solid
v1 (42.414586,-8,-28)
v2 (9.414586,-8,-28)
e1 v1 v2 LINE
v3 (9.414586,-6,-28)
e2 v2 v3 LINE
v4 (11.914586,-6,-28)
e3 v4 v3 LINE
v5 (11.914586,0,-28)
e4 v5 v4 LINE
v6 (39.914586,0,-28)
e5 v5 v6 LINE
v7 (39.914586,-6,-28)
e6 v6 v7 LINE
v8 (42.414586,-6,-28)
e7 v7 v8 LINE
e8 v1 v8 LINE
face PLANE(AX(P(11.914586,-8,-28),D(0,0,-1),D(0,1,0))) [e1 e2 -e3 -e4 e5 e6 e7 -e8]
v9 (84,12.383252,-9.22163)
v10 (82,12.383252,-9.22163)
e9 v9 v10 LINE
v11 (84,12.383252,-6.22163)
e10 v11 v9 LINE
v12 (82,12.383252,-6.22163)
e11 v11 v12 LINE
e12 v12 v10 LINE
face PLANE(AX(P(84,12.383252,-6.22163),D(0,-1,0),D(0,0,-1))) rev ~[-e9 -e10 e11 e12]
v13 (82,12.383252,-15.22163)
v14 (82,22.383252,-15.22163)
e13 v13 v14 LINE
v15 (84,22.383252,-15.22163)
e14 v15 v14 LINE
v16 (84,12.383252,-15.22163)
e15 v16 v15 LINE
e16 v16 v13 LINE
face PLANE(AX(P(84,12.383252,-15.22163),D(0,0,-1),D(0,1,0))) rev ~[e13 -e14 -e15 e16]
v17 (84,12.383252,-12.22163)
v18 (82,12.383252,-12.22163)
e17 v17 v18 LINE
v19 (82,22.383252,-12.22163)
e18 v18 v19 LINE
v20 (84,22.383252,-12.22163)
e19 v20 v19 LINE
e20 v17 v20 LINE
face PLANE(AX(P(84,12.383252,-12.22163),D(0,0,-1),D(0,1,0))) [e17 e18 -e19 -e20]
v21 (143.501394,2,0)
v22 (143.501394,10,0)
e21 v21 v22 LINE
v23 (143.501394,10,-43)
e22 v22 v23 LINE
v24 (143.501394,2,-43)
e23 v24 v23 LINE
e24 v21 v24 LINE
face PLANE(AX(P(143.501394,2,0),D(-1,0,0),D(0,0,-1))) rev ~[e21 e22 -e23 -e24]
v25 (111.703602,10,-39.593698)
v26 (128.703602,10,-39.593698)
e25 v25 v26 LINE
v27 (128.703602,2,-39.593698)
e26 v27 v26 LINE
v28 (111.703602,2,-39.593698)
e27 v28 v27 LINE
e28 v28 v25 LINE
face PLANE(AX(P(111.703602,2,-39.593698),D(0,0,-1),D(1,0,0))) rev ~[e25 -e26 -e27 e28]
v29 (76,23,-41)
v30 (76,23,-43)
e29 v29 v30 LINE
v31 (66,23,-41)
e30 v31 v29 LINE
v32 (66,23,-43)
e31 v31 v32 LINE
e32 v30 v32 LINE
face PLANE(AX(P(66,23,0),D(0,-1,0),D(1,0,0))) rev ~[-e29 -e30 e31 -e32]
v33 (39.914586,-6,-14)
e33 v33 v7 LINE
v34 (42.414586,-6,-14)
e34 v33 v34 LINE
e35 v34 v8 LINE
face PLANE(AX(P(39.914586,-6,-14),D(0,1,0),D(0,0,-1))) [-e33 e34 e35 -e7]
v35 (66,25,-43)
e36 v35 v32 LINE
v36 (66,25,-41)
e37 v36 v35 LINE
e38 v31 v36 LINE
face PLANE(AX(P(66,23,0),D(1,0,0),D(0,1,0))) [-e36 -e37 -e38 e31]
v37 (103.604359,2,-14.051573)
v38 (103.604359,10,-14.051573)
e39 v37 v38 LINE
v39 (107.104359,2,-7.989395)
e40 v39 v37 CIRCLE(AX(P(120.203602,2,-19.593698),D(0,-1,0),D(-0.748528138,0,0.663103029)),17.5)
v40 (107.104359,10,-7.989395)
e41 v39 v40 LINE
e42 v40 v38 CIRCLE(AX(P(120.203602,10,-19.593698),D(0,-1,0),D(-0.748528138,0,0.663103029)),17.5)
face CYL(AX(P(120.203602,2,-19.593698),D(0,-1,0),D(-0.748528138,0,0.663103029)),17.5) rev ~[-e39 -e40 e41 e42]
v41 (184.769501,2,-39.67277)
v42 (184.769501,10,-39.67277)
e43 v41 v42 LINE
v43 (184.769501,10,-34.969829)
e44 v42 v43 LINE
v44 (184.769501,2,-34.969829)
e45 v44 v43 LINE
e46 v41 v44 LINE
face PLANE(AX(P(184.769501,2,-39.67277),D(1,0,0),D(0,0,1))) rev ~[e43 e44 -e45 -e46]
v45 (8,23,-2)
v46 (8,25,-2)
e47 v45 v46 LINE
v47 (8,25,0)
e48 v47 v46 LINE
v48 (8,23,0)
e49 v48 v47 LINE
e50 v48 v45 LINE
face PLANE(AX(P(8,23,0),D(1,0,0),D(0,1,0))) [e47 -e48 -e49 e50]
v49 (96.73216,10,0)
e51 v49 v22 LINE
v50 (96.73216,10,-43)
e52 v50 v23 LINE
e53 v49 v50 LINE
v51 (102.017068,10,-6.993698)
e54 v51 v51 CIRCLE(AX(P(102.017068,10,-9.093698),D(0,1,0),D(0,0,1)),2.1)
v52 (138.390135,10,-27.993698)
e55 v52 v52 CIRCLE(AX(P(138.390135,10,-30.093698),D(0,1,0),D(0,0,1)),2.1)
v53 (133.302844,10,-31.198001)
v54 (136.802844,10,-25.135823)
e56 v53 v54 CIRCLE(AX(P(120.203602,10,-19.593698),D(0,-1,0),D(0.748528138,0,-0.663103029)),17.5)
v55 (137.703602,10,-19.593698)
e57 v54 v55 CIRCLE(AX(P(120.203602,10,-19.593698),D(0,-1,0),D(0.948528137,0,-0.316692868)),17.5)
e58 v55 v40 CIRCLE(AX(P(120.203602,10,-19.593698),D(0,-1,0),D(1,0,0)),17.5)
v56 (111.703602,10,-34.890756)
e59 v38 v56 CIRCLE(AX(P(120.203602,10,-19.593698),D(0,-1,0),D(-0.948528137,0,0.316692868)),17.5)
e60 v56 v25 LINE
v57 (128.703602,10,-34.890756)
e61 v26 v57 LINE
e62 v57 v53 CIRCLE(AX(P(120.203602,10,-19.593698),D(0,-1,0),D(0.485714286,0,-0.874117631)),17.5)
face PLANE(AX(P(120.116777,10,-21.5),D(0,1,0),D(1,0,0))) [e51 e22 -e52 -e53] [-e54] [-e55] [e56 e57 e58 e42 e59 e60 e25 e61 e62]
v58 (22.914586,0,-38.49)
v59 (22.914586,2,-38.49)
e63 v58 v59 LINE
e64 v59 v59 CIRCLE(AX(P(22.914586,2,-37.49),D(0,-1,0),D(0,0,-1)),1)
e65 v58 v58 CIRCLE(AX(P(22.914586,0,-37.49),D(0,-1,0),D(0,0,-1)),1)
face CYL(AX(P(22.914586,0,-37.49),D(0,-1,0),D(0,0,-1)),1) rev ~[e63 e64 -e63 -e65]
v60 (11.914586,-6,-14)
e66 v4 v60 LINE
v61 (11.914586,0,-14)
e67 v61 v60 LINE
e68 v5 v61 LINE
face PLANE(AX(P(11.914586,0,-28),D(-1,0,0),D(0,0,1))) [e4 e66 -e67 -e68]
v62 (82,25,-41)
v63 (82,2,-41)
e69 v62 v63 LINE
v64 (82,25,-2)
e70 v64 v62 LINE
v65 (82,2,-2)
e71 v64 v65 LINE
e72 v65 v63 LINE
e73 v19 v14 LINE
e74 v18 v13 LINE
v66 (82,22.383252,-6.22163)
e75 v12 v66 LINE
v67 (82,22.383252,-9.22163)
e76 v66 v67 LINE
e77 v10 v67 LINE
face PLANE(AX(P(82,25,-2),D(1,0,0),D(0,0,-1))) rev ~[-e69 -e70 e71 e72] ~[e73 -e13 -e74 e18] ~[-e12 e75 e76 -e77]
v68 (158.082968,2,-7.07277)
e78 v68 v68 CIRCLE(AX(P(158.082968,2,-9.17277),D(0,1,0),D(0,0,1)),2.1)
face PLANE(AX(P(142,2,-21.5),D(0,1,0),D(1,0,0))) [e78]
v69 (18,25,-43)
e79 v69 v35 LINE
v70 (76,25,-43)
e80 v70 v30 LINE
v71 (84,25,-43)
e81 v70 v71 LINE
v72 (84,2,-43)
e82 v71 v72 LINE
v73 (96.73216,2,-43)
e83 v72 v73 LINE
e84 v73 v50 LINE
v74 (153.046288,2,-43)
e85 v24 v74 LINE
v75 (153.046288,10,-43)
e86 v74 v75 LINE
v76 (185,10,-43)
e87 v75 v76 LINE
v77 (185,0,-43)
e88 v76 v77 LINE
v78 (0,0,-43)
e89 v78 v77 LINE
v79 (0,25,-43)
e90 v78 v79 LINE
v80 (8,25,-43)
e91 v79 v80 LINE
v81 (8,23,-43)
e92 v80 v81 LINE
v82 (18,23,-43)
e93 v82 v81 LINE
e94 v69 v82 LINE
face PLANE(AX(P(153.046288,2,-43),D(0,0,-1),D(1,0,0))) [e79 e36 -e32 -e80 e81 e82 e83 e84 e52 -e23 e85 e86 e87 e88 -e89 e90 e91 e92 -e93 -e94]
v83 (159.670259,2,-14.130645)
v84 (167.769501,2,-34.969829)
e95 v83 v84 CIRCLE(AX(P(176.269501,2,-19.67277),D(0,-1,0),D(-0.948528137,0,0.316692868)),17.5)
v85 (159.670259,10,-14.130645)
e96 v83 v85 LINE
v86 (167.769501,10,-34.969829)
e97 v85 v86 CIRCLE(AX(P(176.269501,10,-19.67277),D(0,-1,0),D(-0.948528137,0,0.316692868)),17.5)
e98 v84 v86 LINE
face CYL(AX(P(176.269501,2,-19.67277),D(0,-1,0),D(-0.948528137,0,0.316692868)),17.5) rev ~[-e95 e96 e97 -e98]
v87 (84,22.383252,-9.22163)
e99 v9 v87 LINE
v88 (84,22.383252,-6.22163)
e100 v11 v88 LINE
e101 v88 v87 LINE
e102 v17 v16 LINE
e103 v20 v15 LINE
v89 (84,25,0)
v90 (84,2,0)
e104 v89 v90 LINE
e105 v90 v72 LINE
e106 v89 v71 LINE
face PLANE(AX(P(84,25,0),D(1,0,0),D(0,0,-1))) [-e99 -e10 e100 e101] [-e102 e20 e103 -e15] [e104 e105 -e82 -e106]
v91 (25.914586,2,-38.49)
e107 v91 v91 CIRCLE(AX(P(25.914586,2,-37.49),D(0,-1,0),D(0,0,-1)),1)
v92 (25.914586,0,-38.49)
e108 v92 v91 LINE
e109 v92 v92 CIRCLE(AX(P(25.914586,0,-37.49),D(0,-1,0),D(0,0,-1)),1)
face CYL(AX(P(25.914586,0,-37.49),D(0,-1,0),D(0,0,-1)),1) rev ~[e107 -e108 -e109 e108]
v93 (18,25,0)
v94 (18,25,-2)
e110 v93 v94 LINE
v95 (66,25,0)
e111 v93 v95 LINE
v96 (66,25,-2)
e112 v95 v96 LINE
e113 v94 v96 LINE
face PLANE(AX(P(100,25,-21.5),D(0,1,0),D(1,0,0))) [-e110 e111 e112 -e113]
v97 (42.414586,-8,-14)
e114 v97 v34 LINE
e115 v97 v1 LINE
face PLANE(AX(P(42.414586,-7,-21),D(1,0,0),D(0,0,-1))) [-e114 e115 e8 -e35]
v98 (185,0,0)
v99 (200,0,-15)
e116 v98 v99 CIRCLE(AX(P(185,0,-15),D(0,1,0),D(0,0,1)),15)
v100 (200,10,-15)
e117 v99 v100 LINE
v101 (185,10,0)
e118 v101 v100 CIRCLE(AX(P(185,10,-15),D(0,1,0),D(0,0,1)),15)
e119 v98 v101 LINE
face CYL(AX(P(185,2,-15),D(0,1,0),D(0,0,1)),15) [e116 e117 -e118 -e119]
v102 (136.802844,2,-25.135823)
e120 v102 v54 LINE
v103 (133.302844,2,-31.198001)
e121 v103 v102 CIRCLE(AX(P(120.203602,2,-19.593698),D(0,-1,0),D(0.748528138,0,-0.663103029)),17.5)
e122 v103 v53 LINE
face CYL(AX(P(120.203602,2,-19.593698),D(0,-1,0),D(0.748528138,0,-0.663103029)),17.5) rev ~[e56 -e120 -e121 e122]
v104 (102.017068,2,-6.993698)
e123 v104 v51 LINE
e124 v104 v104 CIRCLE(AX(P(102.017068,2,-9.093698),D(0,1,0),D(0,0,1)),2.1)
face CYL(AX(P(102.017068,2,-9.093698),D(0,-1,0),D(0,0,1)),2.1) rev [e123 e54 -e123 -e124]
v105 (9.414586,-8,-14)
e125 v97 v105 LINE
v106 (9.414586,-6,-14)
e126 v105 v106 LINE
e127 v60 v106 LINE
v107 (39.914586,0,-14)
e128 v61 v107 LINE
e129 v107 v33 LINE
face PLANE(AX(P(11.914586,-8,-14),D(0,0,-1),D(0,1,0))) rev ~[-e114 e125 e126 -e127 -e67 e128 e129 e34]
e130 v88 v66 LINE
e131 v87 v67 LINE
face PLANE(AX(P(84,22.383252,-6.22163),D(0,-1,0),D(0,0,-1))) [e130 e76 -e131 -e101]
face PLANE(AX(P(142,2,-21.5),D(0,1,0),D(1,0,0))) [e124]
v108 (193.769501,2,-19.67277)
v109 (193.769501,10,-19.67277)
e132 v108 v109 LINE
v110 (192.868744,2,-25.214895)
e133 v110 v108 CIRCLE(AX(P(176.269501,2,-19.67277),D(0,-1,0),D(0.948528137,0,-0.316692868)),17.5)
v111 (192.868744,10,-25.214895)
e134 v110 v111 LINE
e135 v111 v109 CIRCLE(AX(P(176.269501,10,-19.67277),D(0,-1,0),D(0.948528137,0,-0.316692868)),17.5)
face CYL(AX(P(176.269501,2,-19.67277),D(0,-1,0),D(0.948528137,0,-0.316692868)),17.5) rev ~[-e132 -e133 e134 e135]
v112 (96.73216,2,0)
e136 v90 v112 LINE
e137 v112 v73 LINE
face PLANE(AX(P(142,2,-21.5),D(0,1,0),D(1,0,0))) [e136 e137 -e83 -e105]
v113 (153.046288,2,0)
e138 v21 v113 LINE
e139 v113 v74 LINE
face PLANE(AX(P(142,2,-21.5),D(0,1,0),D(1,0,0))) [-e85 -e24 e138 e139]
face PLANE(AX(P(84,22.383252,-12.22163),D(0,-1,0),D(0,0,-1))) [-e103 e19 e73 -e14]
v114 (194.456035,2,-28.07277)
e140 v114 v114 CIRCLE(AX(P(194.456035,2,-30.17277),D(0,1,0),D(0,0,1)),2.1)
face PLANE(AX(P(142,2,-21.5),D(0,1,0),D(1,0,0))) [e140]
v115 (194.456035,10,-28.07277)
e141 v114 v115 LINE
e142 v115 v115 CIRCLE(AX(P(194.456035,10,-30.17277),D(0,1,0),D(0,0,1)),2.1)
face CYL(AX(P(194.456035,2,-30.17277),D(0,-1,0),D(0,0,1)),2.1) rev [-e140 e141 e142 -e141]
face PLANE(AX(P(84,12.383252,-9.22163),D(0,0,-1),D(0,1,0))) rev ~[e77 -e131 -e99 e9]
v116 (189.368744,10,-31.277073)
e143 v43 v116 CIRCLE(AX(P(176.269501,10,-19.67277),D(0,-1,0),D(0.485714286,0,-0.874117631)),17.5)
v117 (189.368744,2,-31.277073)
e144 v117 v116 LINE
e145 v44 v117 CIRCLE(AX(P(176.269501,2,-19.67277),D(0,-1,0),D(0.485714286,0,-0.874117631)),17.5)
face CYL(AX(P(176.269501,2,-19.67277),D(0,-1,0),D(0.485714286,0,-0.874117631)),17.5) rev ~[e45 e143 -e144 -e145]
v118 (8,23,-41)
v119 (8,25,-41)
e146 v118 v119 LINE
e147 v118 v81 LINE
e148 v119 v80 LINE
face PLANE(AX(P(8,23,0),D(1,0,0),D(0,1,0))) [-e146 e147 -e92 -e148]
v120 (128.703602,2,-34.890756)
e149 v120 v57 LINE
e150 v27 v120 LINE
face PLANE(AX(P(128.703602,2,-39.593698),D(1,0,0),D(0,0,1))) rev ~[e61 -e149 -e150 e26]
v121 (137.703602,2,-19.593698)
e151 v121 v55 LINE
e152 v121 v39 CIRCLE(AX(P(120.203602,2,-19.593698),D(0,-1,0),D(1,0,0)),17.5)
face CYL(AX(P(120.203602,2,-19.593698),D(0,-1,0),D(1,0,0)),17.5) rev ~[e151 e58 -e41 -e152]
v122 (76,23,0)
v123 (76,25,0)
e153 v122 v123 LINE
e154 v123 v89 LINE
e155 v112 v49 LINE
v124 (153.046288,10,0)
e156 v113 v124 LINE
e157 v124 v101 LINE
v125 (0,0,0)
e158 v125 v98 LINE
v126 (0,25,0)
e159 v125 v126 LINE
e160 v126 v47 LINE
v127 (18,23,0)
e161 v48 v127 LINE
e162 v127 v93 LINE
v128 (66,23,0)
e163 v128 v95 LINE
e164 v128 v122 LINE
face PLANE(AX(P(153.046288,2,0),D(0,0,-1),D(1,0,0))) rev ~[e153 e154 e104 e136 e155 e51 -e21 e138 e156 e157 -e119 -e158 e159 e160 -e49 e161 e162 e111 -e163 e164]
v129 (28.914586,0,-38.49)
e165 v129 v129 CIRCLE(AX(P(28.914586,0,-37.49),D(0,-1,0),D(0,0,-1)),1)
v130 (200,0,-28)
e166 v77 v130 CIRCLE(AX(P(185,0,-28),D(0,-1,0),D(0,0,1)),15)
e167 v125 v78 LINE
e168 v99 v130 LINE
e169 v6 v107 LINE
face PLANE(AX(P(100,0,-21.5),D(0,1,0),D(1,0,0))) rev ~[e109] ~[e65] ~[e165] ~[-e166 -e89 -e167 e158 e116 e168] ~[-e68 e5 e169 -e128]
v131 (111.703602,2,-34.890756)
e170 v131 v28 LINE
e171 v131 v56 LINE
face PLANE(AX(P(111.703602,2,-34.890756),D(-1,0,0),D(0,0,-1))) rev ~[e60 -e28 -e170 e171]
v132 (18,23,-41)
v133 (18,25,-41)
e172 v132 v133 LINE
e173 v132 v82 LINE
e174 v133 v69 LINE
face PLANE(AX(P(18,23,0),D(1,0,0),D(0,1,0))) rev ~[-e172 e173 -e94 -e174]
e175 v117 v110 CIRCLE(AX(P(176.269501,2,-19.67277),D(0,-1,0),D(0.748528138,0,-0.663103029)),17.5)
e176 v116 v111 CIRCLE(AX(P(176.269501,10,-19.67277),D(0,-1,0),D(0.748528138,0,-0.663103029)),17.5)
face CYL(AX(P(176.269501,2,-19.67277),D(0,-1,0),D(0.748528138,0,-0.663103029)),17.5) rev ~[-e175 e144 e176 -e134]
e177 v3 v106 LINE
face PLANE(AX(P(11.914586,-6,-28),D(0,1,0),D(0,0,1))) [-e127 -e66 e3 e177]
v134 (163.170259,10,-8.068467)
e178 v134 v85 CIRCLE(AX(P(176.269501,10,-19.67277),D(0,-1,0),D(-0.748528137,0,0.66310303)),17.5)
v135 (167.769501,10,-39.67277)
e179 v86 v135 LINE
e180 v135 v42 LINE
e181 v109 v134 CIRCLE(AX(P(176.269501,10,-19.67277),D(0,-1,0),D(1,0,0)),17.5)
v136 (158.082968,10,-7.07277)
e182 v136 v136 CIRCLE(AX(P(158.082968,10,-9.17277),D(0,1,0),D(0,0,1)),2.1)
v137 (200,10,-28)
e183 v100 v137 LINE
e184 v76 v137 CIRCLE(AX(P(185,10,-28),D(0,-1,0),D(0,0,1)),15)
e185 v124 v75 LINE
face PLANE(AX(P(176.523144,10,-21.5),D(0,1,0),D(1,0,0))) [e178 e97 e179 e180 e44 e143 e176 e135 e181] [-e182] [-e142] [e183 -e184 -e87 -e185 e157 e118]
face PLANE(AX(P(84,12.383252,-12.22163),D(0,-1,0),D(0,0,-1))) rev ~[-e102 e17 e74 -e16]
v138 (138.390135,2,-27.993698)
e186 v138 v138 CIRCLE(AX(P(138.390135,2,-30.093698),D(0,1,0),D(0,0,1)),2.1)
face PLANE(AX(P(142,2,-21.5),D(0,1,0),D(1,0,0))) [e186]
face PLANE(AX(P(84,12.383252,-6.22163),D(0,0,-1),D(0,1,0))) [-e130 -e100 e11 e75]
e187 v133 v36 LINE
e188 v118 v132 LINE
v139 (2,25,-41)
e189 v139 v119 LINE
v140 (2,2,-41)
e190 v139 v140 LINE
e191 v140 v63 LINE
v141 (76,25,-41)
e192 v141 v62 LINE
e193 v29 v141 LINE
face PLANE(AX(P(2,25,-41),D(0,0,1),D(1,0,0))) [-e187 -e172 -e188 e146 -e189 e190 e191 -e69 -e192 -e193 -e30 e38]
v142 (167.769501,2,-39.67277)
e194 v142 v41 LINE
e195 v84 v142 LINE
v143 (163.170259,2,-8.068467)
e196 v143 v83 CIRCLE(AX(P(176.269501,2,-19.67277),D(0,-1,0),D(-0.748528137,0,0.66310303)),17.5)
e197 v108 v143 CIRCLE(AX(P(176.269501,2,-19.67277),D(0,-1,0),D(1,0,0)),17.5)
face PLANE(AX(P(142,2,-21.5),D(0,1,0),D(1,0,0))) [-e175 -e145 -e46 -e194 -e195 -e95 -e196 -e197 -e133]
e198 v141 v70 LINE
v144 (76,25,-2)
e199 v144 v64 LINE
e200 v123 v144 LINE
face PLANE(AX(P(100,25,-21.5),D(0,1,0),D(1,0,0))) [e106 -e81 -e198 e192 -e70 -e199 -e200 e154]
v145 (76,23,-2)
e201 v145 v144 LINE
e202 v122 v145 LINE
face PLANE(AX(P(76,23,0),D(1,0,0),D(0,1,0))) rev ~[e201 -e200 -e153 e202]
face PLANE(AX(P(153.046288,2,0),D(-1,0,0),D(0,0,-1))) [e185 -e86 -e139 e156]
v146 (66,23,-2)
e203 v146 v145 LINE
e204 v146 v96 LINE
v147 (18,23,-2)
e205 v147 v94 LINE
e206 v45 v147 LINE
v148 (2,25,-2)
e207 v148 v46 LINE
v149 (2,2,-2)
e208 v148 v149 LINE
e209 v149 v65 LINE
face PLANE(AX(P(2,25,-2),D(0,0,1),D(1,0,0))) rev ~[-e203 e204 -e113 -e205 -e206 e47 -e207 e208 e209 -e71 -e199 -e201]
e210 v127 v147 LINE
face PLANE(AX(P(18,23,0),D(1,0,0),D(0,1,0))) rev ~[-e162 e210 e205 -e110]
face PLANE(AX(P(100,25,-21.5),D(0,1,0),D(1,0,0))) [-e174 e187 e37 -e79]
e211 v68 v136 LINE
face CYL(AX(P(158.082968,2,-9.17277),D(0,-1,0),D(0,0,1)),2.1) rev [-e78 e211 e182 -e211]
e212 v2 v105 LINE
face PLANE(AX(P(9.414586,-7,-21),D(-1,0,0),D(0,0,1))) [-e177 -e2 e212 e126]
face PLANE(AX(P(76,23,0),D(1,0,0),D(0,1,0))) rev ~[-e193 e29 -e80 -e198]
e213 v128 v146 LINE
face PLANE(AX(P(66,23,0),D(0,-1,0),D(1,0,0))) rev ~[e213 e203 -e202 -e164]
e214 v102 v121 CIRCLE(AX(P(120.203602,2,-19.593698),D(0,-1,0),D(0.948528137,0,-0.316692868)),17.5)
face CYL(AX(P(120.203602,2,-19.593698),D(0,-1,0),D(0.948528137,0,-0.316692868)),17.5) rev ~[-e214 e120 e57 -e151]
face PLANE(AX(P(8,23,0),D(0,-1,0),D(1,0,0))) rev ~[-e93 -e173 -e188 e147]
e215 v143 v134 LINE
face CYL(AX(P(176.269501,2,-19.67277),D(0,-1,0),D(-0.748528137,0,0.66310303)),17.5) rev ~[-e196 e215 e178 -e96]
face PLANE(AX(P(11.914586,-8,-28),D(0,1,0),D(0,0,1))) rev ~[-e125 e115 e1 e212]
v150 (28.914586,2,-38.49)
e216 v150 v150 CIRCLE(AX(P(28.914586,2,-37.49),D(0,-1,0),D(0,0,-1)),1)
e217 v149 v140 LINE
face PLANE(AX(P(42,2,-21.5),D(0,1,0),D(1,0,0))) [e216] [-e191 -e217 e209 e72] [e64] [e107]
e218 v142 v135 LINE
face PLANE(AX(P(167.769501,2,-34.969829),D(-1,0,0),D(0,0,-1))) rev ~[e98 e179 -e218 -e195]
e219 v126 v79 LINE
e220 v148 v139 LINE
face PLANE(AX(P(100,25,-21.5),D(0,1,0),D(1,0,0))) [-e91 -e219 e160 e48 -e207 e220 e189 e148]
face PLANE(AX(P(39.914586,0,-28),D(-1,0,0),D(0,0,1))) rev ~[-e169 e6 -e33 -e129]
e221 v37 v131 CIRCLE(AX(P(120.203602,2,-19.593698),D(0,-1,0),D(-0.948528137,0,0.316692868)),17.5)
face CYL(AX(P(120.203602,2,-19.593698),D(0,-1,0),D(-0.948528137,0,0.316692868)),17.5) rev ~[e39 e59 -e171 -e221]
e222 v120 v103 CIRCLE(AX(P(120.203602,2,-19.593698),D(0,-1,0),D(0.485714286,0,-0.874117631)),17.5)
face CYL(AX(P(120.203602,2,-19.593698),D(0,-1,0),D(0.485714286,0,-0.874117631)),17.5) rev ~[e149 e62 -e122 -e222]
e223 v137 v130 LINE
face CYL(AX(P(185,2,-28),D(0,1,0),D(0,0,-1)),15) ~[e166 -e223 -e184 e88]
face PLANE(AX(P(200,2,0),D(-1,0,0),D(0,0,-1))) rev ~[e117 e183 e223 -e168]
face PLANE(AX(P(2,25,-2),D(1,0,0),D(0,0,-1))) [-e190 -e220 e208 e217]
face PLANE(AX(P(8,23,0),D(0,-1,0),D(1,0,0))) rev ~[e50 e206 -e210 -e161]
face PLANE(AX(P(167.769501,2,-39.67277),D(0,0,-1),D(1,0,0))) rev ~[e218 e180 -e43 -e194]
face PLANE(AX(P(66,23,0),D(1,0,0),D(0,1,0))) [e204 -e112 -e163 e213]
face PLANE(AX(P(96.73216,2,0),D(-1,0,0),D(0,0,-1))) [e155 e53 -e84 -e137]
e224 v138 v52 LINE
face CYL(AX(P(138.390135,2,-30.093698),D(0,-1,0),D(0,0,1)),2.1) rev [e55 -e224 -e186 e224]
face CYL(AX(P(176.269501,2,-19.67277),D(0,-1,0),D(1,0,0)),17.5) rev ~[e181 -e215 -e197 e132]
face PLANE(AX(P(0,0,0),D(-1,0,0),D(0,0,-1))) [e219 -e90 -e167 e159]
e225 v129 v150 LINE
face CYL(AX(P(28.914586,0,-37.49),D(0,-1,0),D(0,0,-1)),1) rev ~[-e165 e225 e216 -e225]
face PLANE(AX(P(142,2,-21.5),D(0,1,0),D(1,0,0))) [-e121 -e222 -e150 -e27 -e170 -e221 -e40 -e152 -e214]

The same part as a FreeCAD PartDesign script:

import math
import FreeCAD as App
import Part
import Sketcher

V = App.Vector


def edges_at(feature, points):
    """Names of the edges that pass closest to the given points."""
    edges = feature.Shape.Edges
    near = lambda p: min(range(len(edges)), key=lambda i: edges[i].distToShape(Part.Vertex(*p))[0])
    return sorted({f"Edge{near(p) + 1}" for p in points})

doc = App.newDocument("Part")
params = doc.addObject("Spreadsheet::Sheet", "Params")
for row, (alias, value) in enumerate([
    ("sketch1_width", "200 mm"),
    ("sketch1_height", "43 mm"),
    ("pad1_length", "25 mm"),
    ("sketch2_width", "80 mm"),
    ("sketch2_height", "39 mm"),
    ("pocket1_length", "23 mm"),
    ("sketch3_width", "28 mm"),
    ("sketch3_height", "14 mm"),
    ("pad2_length", "8 mm"),
    ("sketch4_width", "2 mm"),
    ("sketch4_height", "14 mm"),
    ("pad3_length", "2.5 mm"),
    ("sketch5_width", "2 mm"),
    ("sketch5_height", "14 mm"),
    ("pad4_length", "2.5 mm"),
    ("sketch6_diameter", "2 mm"),
    ("pocket2_length", "2 mm"),
    ("sketch7_width", "116 mm"),
    ("sketch7_height", "43 mm"),
    ("pocket3_length", "23 mm"),
    ("sketch8_diameter", "4.2 mm"),
    ("sketch8_radius", "17.5 mm"),
    ("sketch8_width", "17 mm"),
    ("sketch8_height", "43 mm"),
    ("pad5_length", "8 mm"),
    ("sketch9_width", "10 mm"),
    ("sketch9_height", "2 mm"),
    ("pocket4_length", "61 mm"),
    ("sketch10_diameter", "4.2 mm"),
    ("sketch10_radius", "17.5 mm"),
    ("sketch10_width", "17 mm"),
    ("sketch10_height", "43 mm"),
    ("pad6_length", "8 mm"),
    ("sketch11_width", "10 mm"),
    ("sketch11_height", "3 mm"),
    ("pocket5_length", "8 mm"),
    ("fillet_radius", "15 mm"),
    ("fillet2_radius", "15 mm"),
], start=1):
    params.set(f"A{row}", alias)
    params.set(f"B{row}", "=" + value)
    params.setAlias(f"B{row}", alias)

body = doc.addObject("PartDesign::Body", "Body")

# Sketch on XZ plane
sketch1 = body.newObject("Sketcher::SketchObject", "Sketch")
sketch1.AttachmentSupport = (doc.getObject("XZ_Plane"), [""])
sketch1.MapMode = "FlatFace"
sketch1.addGeometry(Part.LineSegment(V(0, -43, 0), V(0, 0, 0)), False)
sketch1.addGeometry(Part.LineSegment(V(0, 0, 0), V(200, 0, 0)), False)
sketch1.addGeometry(Part.LineSegment(V(200, 0, 0), V(200, -43, 0)), False)
sketch1.addGeometry(Part.LineSegment(V(200, -43, 0), V(0, -43, 0)), False)
sketch1.addConstraint(Sketcher.Constraint("Coincident", 0, 2, 1, 1))
sketch1.addConstraint(Sketcher.Constraint("Coincident", 1, 2, 2, 1))
sketch1.addConstraint(Sketcher.Constraint("Coincident", 2, 2, 3, 1))
sketch1.addConstraint(Sketcher.Constraint("Coincident", 3, 2, 0, 1))
sketch1.addConstraint(Sketcher.Constraint("Vertical", 0))
sketch1.addConstraint(Sketcher.Constraint("Horizontal", 1))
sketch1.addConstraint(Sketcher.Constraint("Vertical", 2))
sketch1.addConstraint(Sketcher.Constraint("Horizontal", 3))
sketch1.addConstraint(Sketcher.Constraint("Coincident", 0, 2, -1, 1))
sketch1.addConstraint(Sketcher.Constraint("DistanceX", 1, 1, 1, 2, 200.0))
sketch1.addConstraint(Sketcher.Constraint("DistanceY", 0, 1, 0, 2, 43.0))
sketch1.setExpression("Constraints[9]", "Params.sketch1_width")
sketch1.setExpression("Constraints[10]", "Params.sketch1_height")
pad1 = body.newObject("PartDesign::Pad", "Pad")
pad1.Profile = sketch1
pad1.setExpression("Length", "Params.pad1_length")
pad1.Reversed = True

# Sketch on XZ plane
sketch2 = body.newObject("Sketcher::SketchObject", "Sketch001")
sketch2.AttachmentSupport = (doc.getObject("XZ_Plane"), [""])
sketch2.MapMode = "FlatFace"
sketch2.AttachmentOffset = App.Placement(V(0, 0, -25), App.Rotation())
sketch2.addGeometry(Part.LineSegment(V(2, -41, 0), V(2, -2, 0)), False)
sketch2.addGeometry(Part.LineSegment(V(2, -2, 0), V(82, -2, 0)), False)
sketch2.addGeometry(Part.LineSegment(V(82, -2, 0), V(82, -41, 0)), False)
sketch2.addGeometry(Part.LineSegment(V(82, -41, 0), V(2, -41, 0)), False)
sketch2.addConstraint(Sketcher.Constraint("Coincident", 0, 2, 1, 1))
sketch2.addConstraint(Sketcher.Constraint("Coincident", 1, 2, 2, 1))
sketch2.addConstraint(Sketcher.Constraint("Coincident", 2, 2, 3, 1))
sketch2.addConstraint(Sketcher.Constraint("Coincident", 3, 2, 0, 1))
sketch2.addConstraint(Sketcher.Constraint("Vertical", 0))
sketch2.addConstraint(Sketcher.Constraint("Horizontal", 1))
sketch2.addConstraint(Sketcher.Constraint("Vertical", 2))
sketch2.addConstraint(Sketcher.Constraint("Horizontal", 3))
sketch2.addConstraint(Sketcher.Constraint("DistanceX", 1, 1, 1, 2, 80.0))
sketch2.addConstraint(Sketcher.Constraint("DistanceY", 0, 1, 0, 2, 39.0))
sketch2.addConstraint(Sketcher.Constraint("DistanceX", -1, 1, 0, 2, 2.0))
sketch2.addConstraint(Sketcher.Constraint("DistanceY", 0, 2, -1, 1, 2.0))
sketch2.setExpression("Constraints[8]", "Params.sketch2_width")
sketch2.setExpression("Constraints[9]", "Params.sketch2_height")
pocket1 = body.newObject("PartDesign::Pocket", "Pocket")
pocket1.Profile = sketch2
pocket1.setExpression("Length", "Params.pocket1_length")
pocket1.Reversed = True

# Sketch on XZ plane
sketch3 = body.newObject("Sketcher::SketchObject", "Sketch002")
sketch3.AttachmentSupport = (doc.getObject("XZ_Plane"), [""])
sketch3.MapMode = "FlatFace"
sketch3.addGeometry(Part.LineSegment(V(11.914586, -14, 0), V(11.914586, -28, 0)), False)
sketch3.addGeometry(Part.LineSegment(V(11.914586, -28, 0), V(39.914586, -28, 0)), False)
sketch3.addGeometry(Part.LineSegment(V(39.914586, -28, 0), V(39.914586, -14, 0)), False)
sketch3.addGeometry(Part.LineSegment(V(39.914586, -14, 0), V(11.914586, -14, 0)), False)
sketch3.addConstraint(Sketcher.Constraint("Coincident", 0, 2, 1, 1))
sketch3.addConstraint(Sketcher.Constraint("Coincident", 1, 2, 2, 1))
sketch3.addConstraint(Sketcher.Constraint("Coincident", 2, 2, 3, 1))
sketch3.addConstraint(Sketcher.Constraint("Coincident", 3, 2, 0, 1))
sketch3.addConstraint(Sketcher.Constraint("Vertical", 0))
sketch3.addConstraint(Sketcher.Constraint("Horizontal", 1))
sketch3.addConstraint(Sketcher.Constraint("Vertical", 2))
sketch3.addConstraint(Sketcher.Constraint("Horizontal", 3))
sketch3.addConstraint(Sketcher.Constraint("DistanceX", 1, 1, 1, 2, 28.0))
sketch3.addConstraint(Sketcher.Constraint("DistanceY", 0, 2, 0, 1, 14.0))
sketch3.addConstraint(Sketcher.Constraint("DistanceY", 0, 2, -1, 1, 28.0))
sketch3.addConstraint(Sketcher.Constraint("DistanceX", -1, 1, 0, 2, 11.914586))
sketch3.setExpression("Constraints[8]", "Params.sketch3_width")
sketch3.setExpression("Constraints[9]", "Params.sketch3_height")
pad2 = body.newObject("PartDesign::Pad", "Pad001")
pad2.Profile = sketch3
pad2.setExpression("Length", "Params.pad2_length")

# Sketch on YZ plane
sketch4 = body.newObject("Sketcher::SketchObject", "Sketch003")
sketch4.AttachmentSupport = (doc.getObject("YZ_Plane"), [""])
sketch4.MapMode = "FlatFace"
sketch4.AttachmentOffset = App.Placement(V(0, 0, 39.914586), App.Rotation())
sketch4.addGeometry(Part.LineSegment(V(-6, -14, 0), V(-8, -14, 0)), False)
sketch4.addGeometry(Part.LineSegment(V(-8, -14, 0), V(-8, -28, 0)), False)
sketch4.addGeometry(Part.LineSegment(V(-8, -28, 0), V(-6, -28, 0)), False)
sketch4.addGeometry(Part.LineSegment(V(-6, -28, 0), V(-6, -14, 0)), False)
sketch4.addConstraint(Sketcher.Constraint("Coincident", 0, 2, 1, 1))
sketch4.addConstraint(Sketcher.Constraint("Coincident", 1, 2, 2, 1))
sketch4.addConstraint(Sketcher.Constraint("Coincident", 2, 2, 3, 1))
sketch4.addConstraint(Sketcher.Constraint("Coincident", 3, 2, 0, 1))
sketch4.addConstraint(Sketcher.Constraint("Horizontal", 0))
sketch4.addConstraint(Sketcher.Constraint("Vertical", 1))
sketch4.addConstraint(Sketcher.Constraint("Horizontal", 2))
sketch4.addConstraint(Sketcher.Constraint("Vertical", 3))
sketch4.addConstraint(Sketcher.Constraint("DistanceX", 0, 2, 0, 1, 2.0))
sketch4.addConstraint(Sketcher.Constraint("DistanceY", 1, 2, 1, 1, 14.0))
sketch4.addConstraint(Sketcher.Constraint("DistanceX", 0, 2, -1, 1, 8.0))
sketch4.addConstraint(Sketcher.Constraint("DistanceY", 0, 2, -1, 1, 14.0))
sketch4.setExpression("Constraints[8]", "Params.sketch4_width")
sketch4.setExpression("Constraints[9]", "Params.sketch4_height")
pad3 = body.newObject("PartDesign::Pad", "Pad002")
pad3.Profile = sketch4
pad3.setExpression("Length", "Params.pad3_length")

# Sketch on YZ plane
sketch5 = body.newObject("Sketcher::SketchObject", "Sketch004")
sketch5.AttachmentSupport = (doc.getObject("YZ_Plane"), [""])
sketch5.MapMode = "FlatFace"
sketch5.AttachmentOffset = App.Placement(V(0, 0, 11.914586), App.Rotation())
sketch5.addGeometry(Part.LineSegment(V(-6, -28, 0), V(-8, -28, 0)), False)
sketch5.addGeometry(Part.LineSegment(V(-8, -28, 0), V(-8, -14, 0)), False)
sketch5.addGeometry(Part.LineSegment(V(-8, -14, 0), V(-6, -14, 0)), False)
sketch5.addGeometry(Part.LineSegment(V(-6, -14, 0), V(-6, -28, 0)), False)
sketch5.addConstraint(Sketcher.Constraint("Coincident", 0, 2, 1, 1))
sketch5.addConstraint(Sketcher.Constraint("Coincident", 1, 2, 2, 1))
sketch5.addConstraint(Sketcher.Constraint("Coincident", 2, 2, 3, 1))
sketch5.addConstraint(Sketcher.Constraint("Coincident", 3, 2, 0, 1))
sketch5.addConstraint(Sketcher.Constraint("Horizontal", 0))
sketch5.addConstraint(Sketcher.Constraint("Vertical", 1))
sketch5.addConstraint(Sketcher.Constraint("Horizontal", 2))
sketch5.addConstraint(Sketcher.Constraint("Vertical", 3))
sketch5.addConstraint(Sketcher.Constraint("DistanceX", 0, 2, 0, 1, 2.0))
sketch5.addConstraint(Sketcher.Constraint("DistanceY", 1, 1, 1, 2, 14.0))
sketch5.addConstraint(Sketcher.Constraint("DistanceX", 0, 2, -1, 1, 8.0))
sketch5.addConstraint(Sketcher.Constraint("DistanceY", 0, 2, -1, 1, 28.0))
sketch5.setExpression("Constraints[8]", "Params.sketch5_width")
sketch5.setExpression("Constraints[9]", "Params.sketch5_height")
pad4 = body.newObject("PartDesign::Pad", "Pad003")
pad4.Profile = sketch5
pad4.setExpression("Length", "Params.pad4_length")
pad4.Reversed = True

# Sketch on XZ plane
sketch6 = body.newObject("Sketcher::SketchObject", "Sketch005")
sketch6.AttachmentSupport = (doc.getObject("XZ_Plane"), [""])
sketch6.MapMode = "FlatFace"
sketch6.addGeometry(Part.Circle(V(25.914586, -37.49, 0), V(0, 0, 1), 1), False)
sketch6.addGeometry(Part.Circle(V(28.914586, -37.49, 0), V(0, 0, 1), 1), False)
sketch6.addGeometry(Part.Circle(V(22.914586, -37.49, 0), V(0, 0, 1), 1), False)
sketch6.addConstraint(Sketcher.Constraint("Equal", 0, 1))
sketch6.addConstraint(Sketcher.Constraint("Equal", 1, 2))
sketch6.addConstraint(Sketcher.Constraint("Horizontal", 0, 3, 1, 3))
sketch6.addConstraint(Sketcher.Constraint("Horizontal", 1, 3, 2, 3))
sketch6.addConstraint(Sketcher.Constraint("Diameter", 0, 2.0))
sketch6.addConstraint(Sketcher.Constraint("DistanceX", 0, 3, 1, 3, 3.0))
sketch6.addConstraint(Sketcher.Constraint("DistanceX", 2, 3, 0, 3, 3.0))
sketch6.addConstraint(Sketcher.Constraint("DistanceY", 0, 3, -1, 1, 37.49))
sketch6.addConstraint(Sketcher.Constraint("DistanceX", -1, 1, 0, 3, 25.914586))
sketch6.setExpression("Constraints[4]", "Params.sketch6_diameter")
pocket2 = body.newObject("PartDesign::Pocket", "Pocket001")
pocket2.Profile = sketch6
pocket2.setExpression("Length", "Params.pocket2_length")

# Sketch on XZ plane
sketch7 = body.newObject("Sketcher::SketchObject", "Sketch006")
sketch7.AttachmentSupport = (doc.getObject("XZ_Plane"), [""])
sketch7.MapMode = "FlatFace"
sketch7.AttachmentOffset = App.Placement(V(0, 0, -25), App.Rotation())
sketch7.addGeometry(Part.LineSegment(V(84, -43, 0), V(84, 0, 0)), False)
sketch7.addGeometry(Part.LineSegment(V(84, 0, 0), V(200, 0, 0)), False)
sketch7.addGeometry(Part.LineSegment(V(200, 0, 0), V(200, -43, 0)), False)
sketch7.addGeometry(Part.LineSegment(V(200, -43, 0), V(84, -43, 0)), False)
sketch7.addConstraint(Sketcher.Constraint("Coincident", 0, 2, 1, 1))
sketch7.addConstraint(Sketcher.Constraint("Coincident", 1, 2, 2, 1))
sketch7.addConstraint(Sketcher.Constraint("Coincident", 2, 2, 3, 1))
sketch7.addConstraint(Sketcher.Constraint("Coincident", 3, 2, 0, 1))
sketch7.addConstraint(Sketcher.Constraint("Vertical", 0))
sketch7.addConstraint(Sketcher.Constraint("Horizontal", 1))
sketch7.addConstraint(Sketcher.Constraint("Vertical", 2))
sketch7.addConstraint(Sketcher.Constraint("Horizontal", 3))
sketch7.addConstraint(Sketcher.Constraint("PointOnObject", 0, 2, -1))
sketch7.addConstraint(Sketcher.Constraint("DistanceX", 1, 1, 1, 2, 116.0))
sketch7.addConstraint(Sketcher.Constraint("DistanceY", 0, 1, 0, 2, 43.0))
sketch7.addConstraint(Sketcher.Constraint("DistanceX", -1, 1, 0, 2, 84.0))
sketch7.setExpression("Constraints[9]", "Params.sketch7_width")
sketch7.setExpression("Constraints[10]", "Params.sketch7_height")
pocket3 = body.newObject("PartDesign::Pocket", "Pocket002")
pocket3.Profile = sketch7
pocket3.setExpression("Length", "Params.pocket3_length")
pocket3.Reversed = True

# Sketch on XZ plane
sketch8 = body.newObject("Sketcher::SketchObject", "Sketch007")
sketch8.AttachmentSupport = (doc.getObject("XZ_Plane"), [""])
sketch8.MapMode = "FlatFace"
sketch8.AttachmentOffset = App.Placement(V(0, 0, -2), App.Rotation())
sketch8.addGeometry(Part.LineSegment(V(153.046288, -43, 0), V(153.046288, 0, 0)), False)
sketch8.addGeometry(Part.LineSegment(V(153.046288, 0, 0), V(200, 0, 0)), False)
sketch8.addGeometry(Part.LineSegment(V(200, 0, 0), V(200, -43, 0)), False)
sketch8.addGeometry(Part.LineSegment(V(200, -43, 0), V(153.046288, -43, 0)), False)
sketch8.addGeometry(Part.Circle(V(158.082968, -9.17277, 0), V(0, 0, 1), 2.1), False)
sketch8.addGeometry(Part.LineSegment(V(167.769501, -34.969829, 0), V(167.769501, -39.67277, 0)), False)
sketch8.addGeometry(Part.LineSegment(V(167.769501, -39.67277, 0), V(184.769501, -39.67277, 0)), False)
sketch8.addGeometry(Part.LineSegment(V(184.769501, -39.67277, 0), V(184.769501, -34.969829, 0)), False)
sketch8.addGeometry(Part.ArcOfCircle(Part.Circle(V(176.269501, -19.67277, 0), V(0, 0, 1), 17.5), math.radians(-60.940719), math.radians(-41.536959)), False)
sketch8.addGeometry(Part.ArcOfCircle(Part.Circle(V(176.269501, -19.67277, 0), V(0, 0, 1), 17.5), math.radians(-41.536959), math.radians(-18.463041)), False)
sketch8.addGeometry(Part.ArcOfCircle(Part.Circle(V(176.269501, -19.67277, 0), V(0, 0, 1), 17.5), math.radians(-18.463041), math.radians(0)), False)
sketch8.addGeometry(Part.ArcOfCircle(Part.Circle(V(176.269501, -19.67277, 0), V(0, 0, 1), 17.5), math.radians(0), math.radians(138.463041)), False)
sketch8.addGeometry(Part.ArcOfCircle(Part.Circle(V(176.269501, -19.67277, 0), V(0, 0, 1), 17.5), math.radians(138.463041), math.radians(161.536959)), False)
sketch8.addGeometry(Part.ArcOfCircle(Part.Circle(V(176.269501, -19.67277, 0), V(0, 0, 1), 17.5), math.radians(161.536959), math.radians(240.940719)), False)
sketch8.addGeometry(Part.Circle(V(194.456035, -30.17277, 0), V(0, 0, 1), 2.1), False)
sketch8.addConstraint(Sketcher.Constraint("Coincident", 0, 2, 1, 1))
sketch8.addConstraint(Sketcher.Constraint("Coincident", 1, 2, 2, 1))
sketch8.addConstraint(Sketcher.Constraint("Coincident", 2, 2, 3, 1))
sketch8.addConstraint(Sketcher.Constraint("Coincident", 3, 2, 0, 1))
sketch8.addConstraint(Sketcher.Constraint("Coincident", 5, 2, 6, 1))
sketch8.addConstraint(Sketcher.Constraint("Coincident", 6, 2, 7, 1))
sketch8.addConstraint(Sketcher.Constraint("Coincident", 7, 2, 8, 1))
sketch8.addConstraint(Sketcher.Constraint("Tangent", 8, 2, 9, 1))
sketch8.addConstraint(Sketcher.Constraint("Tangent", 9, 2, 10, 1))
sketch8.addConstraint(Sketcher.Constraint("Tangent", 10, 2, 11, 1))
sketch8.addConstraint(Sketcher.Constraint("Tangent", 11, 2, 12, 1))
sketch8.addConstraint(Sketcher.Constraint("Tangent", 12, 2, 13, 1))
sketch8.addConstraint(Sketcher.Constraint("Coincident", 13, 2, 5, 1))
sketch8.addConstraint(Sketcher.Constraint("Vertical", 0))
sketch8.addConstraint(Sketcher.Constraint("Horizontal", 1))
sketch8.addConstraint(Sketcher.Constraint("Vertical", 2))
sketch8.addConstraint(Sketcher.Constraint("Horizontal", 3))
sketch8.addConstraint(Sketcher.Constraint("Vertical", 5))
sketch8.addConstraint(Sketcher.Constraint("Horizontal", 6))
sketch8.addConstraint(Sketcher.Constraint("Vertical", 7))
sketch8.addConstraint(Sketcher.Constraint("Coincident", 10, 3, 8, 3))
sketch8.addConstraint(Sketcher.Constraint("Coincident", 12, 3, 8, 3))
sketch8.addConstraint(Sketcher.Constraint("Equal", 12, 13))
sketch8.addConstraint(Sketcher.Constraint("Equal", 4, 14))
sketch8.addConstraint(Sketcher.Constraint("PointOnObject", 0, 2, -1))
sketch8.addConstraint(Sketcher.Constraint("Horizontal", 13, 3, 10, 2))
sketch8.addConstraint(Sketcher.Constraint("Horizontal", 7, 2, 13, 2))
sketch8.addConstraint(Sketcher.Constraint("Diameter", 4, 4.2))
sketch8.addConstraint(Sketcher.Constraint("Radius", 8, 17.5))
sketch8.addConstraint(Sketcher.Constraint("DistanceX", 6, 1, 6, 2, 17.0))
sketch8.addConstraint(Sketcher.Constraint("DistanceY", 0, 1, 0, 2, 43.0))
sketch8.addConstraint(Sketcher.Constraint("DistanceX", -1, 1, 1, 2, 200.0))
sketch8.addConstraint(Sketcher.Constraint("DistanceY", 5, 2, 10, 3, 20.0))
sketch8.addConstraint(Sketcher.Constraint("DistanceY", 8, 3, 4, 3, 10.5))
sketch8.addConstraint(Sketcher.Constraint("DistanceY", 14, 3, 8, 3, 10.5))
sketch8.addConstraint(Sketcher.Constraint("DistanceX", 8, 2, 9, 2, 3.5))
sketch8.addConstraint(Sketcher.Constraint("DistanceX", 12, 2, 11, 2, 3.5))
sketch8.addConstraint(Sketcher.Constraint("DistanceX", -1, 1, 8, 3, 176.269501))
sketch8.addConstraint(Sketcher.Constraint("DistanceX", 1, 1, 1, 2, 46.953712))
sketch8.addConstraint(Sketcher.Constraint("DistanceY", 4, 3, -1, 1, 9.17277))
sketch8.addConstraint(Sketcher.Constraint("DistanceX", -1, 1, 11, 2, 163.170259))
sketch8.addConstraint(Sketcher.Constraint("DistanceX", 0, 2, 4, 3, 5.03668))
sketch8.addConstraint(Sketcher.Constraint("DistanceX", 8, 2, 14, 3, 5.087291))
sketch8.addConstraint(Sketcher.Constraint("DistanceX", -1, 1, 14, 3, 194.456035))
sketch8.setExpression("Constraints[27]", "Params.sketch8_diameter")
sketch8.setExpression("Constraints[28]", "Params.sketch8_radius")
sketch8.setExpression("Constraints[29]", "Params.sketch8_width")
sketch8.setExpression("Constraints[30]", "Params.sketch8_height")
pad5 = body.newObject("PartDesign::Pad", "Pad004")
pad5.Profile = sketch8
pad5.setExpression("Length", "Params.pad5_length")
pad5.Reversed = True

# Sketch on XY plane
sketch9 = body.newObject("Sketcher::SketchObject", "Sketch008")
sketch9.AttachmentSupport = (doc.getObject("XY_Plane"), [""])
sketch9.MapMode = "FlatFace"
sketch9.addGeometry(Part.LineSegment(V(8, 25, 0), V(8, 23, 0)), False)
sketch9.addGeometry(Part.LineSegment(V(8, 23, 0), V(18, 23, 0)), False)
sketch9.addGeometry(Part.LineSegment(V(18, 23, 0), V(18, 25, 0)), False)
sketch9.addGeometry(Part.LineSegment(V(18, 25, 0), V(8, 25, 0)), False)
sketch9.addGeometry(Part.LineSegment(V(66, 25, 0), V(66, 23, 0)), False)
sketch9.addGeometry(Part.LineSegment(V(66, 23, 0), V(76, 23, 0)), False)
sketch9.addGeometry(Part.LineSegment(V(76, 23, 0), V(76, 25, 0)), False)
sketch9.addGeometry(Part.LineSegment(V(76, 25, 0), V(66, 25, 0)), False)
sketch9.addConstraint(Sketcher.Constraint("Coincident", 0, 2, 1, 1))
sketch9.addConstraint(Sketcher.Constraint("Coincident", 1, 2, 2, 1))
sketch9.addConstraint(Sketcher.Constraint("Coincident", 2, 2, 3, 1))
sketch9.addConstraint(Sketcher.Constraint("Coincident", 3, 2, 0, 1))
sketch9.addConstraint(Sketcher.Constraint("Coincident", 4, 2, 5, 1))
sketch9.addConstraint(Sketcher.Constraint("Coincident", 5, 2, 6, 1))
sketch9.addConstraint(Sketcher.Constraint("Coincident", 6, 2, 7, 1))
sketch9.addConstraint(Sketcher.Constraint("Coincident", 7, 2, 4, 1))
sketch9.addConstraint(Sketcher.Constraint("Vertical", 0))
sketch9.addConstraint(Sketcher.Constraint("Horizontal", 1))
sketch9.addConstraint(Sketcher.Constraint("Vertical", 2))
sketch9.addConstraint(Sketcher.Constraint("Horizontal", 3))
sketch9.addConstraint(Sketcher.Constraint("Vertical", 4))
sketch9.addConstraint(Sketcher.Constraint("Horizontal", 5))
sketch9.addConstraint(Sketcher.Constraint("Vertical", 6))
sketch9.addConstraint(Sketcher.Constraint("Horizontal", 7))
sketch9.addConstraint(Sketcher.Constraint("Horizontal", 1, 2, 4, 2))
sketch9.addConstraint(Sketcher.Constraint("Horizontal", 3, 2, 6, 2))
sketch9.addConstraint(Sketcher.Constraint("Equal", 3, 5))
sketch9.addConstraint(Sketcher.Constraint("DistanceX", 1, 1, 1, 2, 10.0))
sketch9.addConstraint(Sketcher.Constraint("DistanceY", 0, 2, 0, 1, 2.0))
sketch9.addConstraint(Sketcher.Constraint("DistanceX", -1, 1, 0, 2, 8.0))
sketch9.addConstraint(Sketcher.Constraint("DistanceY", -1, 1, 0, 2, 23.0))
sketch9.addConstraint(Sketcher.Constraint("DistanceX", -1, 1, 4, 2, 66.0))
sketch9.setExpression("Constraints[19]", "Params.sketch9_width")
sketch9.setExpression("Constraints[20]", "Params.sketch9_height")
pocket4 = body.newObject("PartDesign::Pocket", "Pocket003")
pocket4.Profile = sketch9
pocket4.setExpression("Length", "Params.pocket4_length")

# Sketch on XZ plane
sketch10 = body.newObject("Sketcher::SketchObject", "Sketch009")
sketch10.AttachmentSupport = (doc.getObject("XZ_Plane"), [""])
sketch10.MapMode = "FlatFace"
sketch10.AttachmentOffset = App.Placement(V(0, 0, -2), App.Rotation())
sketch10.addGeometry(Part.LineSegment(V(96.73216, -43, 0), V(96.73216, 0, 0)), False)
sketch10.addGeometry(Part.LineSegment(V(96.73216, 0, 0), V(143.501394, 0, 0)), False)
sketch10.addGeometry(Part.LineSegment(V(143.501394, 0, 0), V(143.501394, -43, 0)), False)
sketch10.addGeometry(Part.LineSegment(V(143.501394, -43, 0), V(96.73216, -43, 0)), False)
sketch10.addGeometry(Part.Circle(V(102.017068, -9.093698, 0), V(0, 0, 1), 2.1), False)
sketch10.addGeometry(Part.LineSegment(V(111.703602, -34.890756, 0), V(111.703602, -39.593698, 0)), False)
sketch10.addGeometry(Part.LineSegment(V(111.703602, -39.593698, 0), V(128.703602, -39.593698, 0)), False)
sketch10.addGeometry(Part.LineSegment(V(128.703602, -39.593698, 0), V(128.703602, -34.890756, 0)), False)
sketch10.addGeometry(Part.ArcOfCircle(Part.Circle(V(120.203602, -19.593698, 0), V(0, 0, 1), 17.5), math.radians(-60.940719), math.radians(-41.536959)), False)
sketch10.addGeometry(Part.ArcOfCircle(Part.Circle(V(120.203602, -19.593698, 0), V(0, 0, 1), 17.5), math.radians(-41.536959), math.radians(-18.463041)), False)
sketch10.addGeometry(Part.ArcOfCircle(Part.Circle(V(120.203602, -19.593698, 0), V(0, 0, 1), 17.5), math.radians(-18.463041), math.radians(0)), False)
sketch10.addGeometry(Part.ArcOfCircle(Part.Circle(V(120.203602, -19.593698, 0), V(0, 0, 1), 17.5), math.radians(0), math.radians(138.463041)), False)
sketch10.addGeometry(Part.ArcOfCircle(Part.Circle(V(120.203602, -19.593698, 0), V(0, 0, 1), 17.5), math.radians(138.463041), math.radians(161.536959)), False)
sketch10.addGeometry(Part.ArcOfCircle(Part.Circle(V(120.203602, -19.593698, 0), V(0, 0, 1), 17.5), math.radians(161.536959), math.radians(240.940719)), False)
sketch10.addGeometry(Part.Circle(V(138.390135, -30.093698, 0), V(0, 0, 1), 2.1), False)
sketch10.addConstraint(Sketcher.Constraint("Coincident", 0, 2, 1, 1))
sketch10.addConstraint(Sketcher.Constraint("Coincident", 1, 2, 2, 1))
sketch10.addConstraint(Sketcher.Constraint("Coincident", 2, 2, 3, 1))
sketch10.addConstraint(Sketcher.Constraint("Coincident", 3, 2, 0, 1))
sketch10.addConstraint(Sketcher.Constraint("Coincident", 5, 2, 6, 1))
sketch10.addConstraint(Sketcher.Constraint("Coincident", 6, 2, 7, 1))
sketch10.addConstraint(Sketcher.Constraint("Coincident", 7, 2, 8, 1))
sketch10.addConstraint(Sketcher.Constraint("Tangent", 8, 2, 9, 1))
sketch10.addConstraint(Sketcher.Constraint("Tangent", 9, 2, 10, 1))
sketch10.addConstraint(Sketcher.Constraint("Tangent", 10, 2, 11, 1))
sketch10.addConstraint(Sketcher.Constraint("Tangent", 11, 2, 12, 1))
sketch10.addConstraint(Sketcher.Constraint("Tangent", 12, 2, 13, 1))
sketch10.addConstraint(Sketcher.Constraint("Coincident", 13, 2, 5, 1))
sketch10.addConstraint(Sketcher.Constraint("Vertical", 0))
sketch10.addConstraint(Sketcher.Constraint("Horizontal", 1))
sketch10.addConstraint(Sketcher.Constraint("Vertical", 2))
sketch10.addConstraint(Sketcher.Constraint("Horizontal", 3))
sketch10.addConstraint(Sketcher.Constraint("Vertical", 5))
sketch10.addConstraint(Sketcher.Constraint("Horizontal", 6))
sketch10.addConstraint(Sketcher.Constraint("Vertical", 7))
sketch10.addConstraint(Sketcher.Constraint("Coincident", 10, 3, 8, 3))
sketch10.addConstraint(Sketcher.Constraint("Coincident", 12, 3, 8, 3))
sketch10.addConstraint(Sketcher.Constraint("Equal", 12, 13))
sketch10.addConstraint(Sketcher.Constraint("Equal", 4, 14))
sketch10.addConstraint(Sketcher.Constraint("PointOnObject", 0, 2, -1))
sketch10.addConstraint(Sketcher.Constraint("Horizontal", 13, 3, 10, 2))
sketch10.addConstraint(Sketcher.Constraint("Horizontal", 7, 2, 13, 2))
sketch10.addConstraint(Sketcher.Constraint("Diameter", 4, 4.2))
sketch10.addConstraint(Sketcher.Constraint("Radius", 8, 17.5))
sketch10.addConstraint(Sketcher.Constraint("DistanceX", 6, 1, 6, 2, 17.0))
sketch10.addConstraint(Sketcher.Constraint("DistanceY", 0, 1, 0, 2, 43.0))
sketch10.addConstraint(Sketcher.Constraint("DistanceY", 5, 2, 10, 3, 20.0))
sketch10.addConstraint(Sketcher.Constraint("DistanceY", 8, 3, 4, 3, 10.5))
sketch10.addConstraint(Sketcher.Constraint("DistanceY", 14, 3, 12, 3, 10.5))
sketch10.addConstraint(Sketcher.Constraint("DistanceX", 8, 2, 9, 2, 3.5))
sketch10.addConstraint(Sketcher.Constraint("DistanceX", 12, 2, 11, 2, 3.5))
sketch10.addConstraint(Sketcher.Constraint("DistanceY", 8, 2, -1, 1, 31.198001))
sketch10.addConstraint(Sketcher.Constraint("DistanceX", -1, 1, 8, 3, 120.203602))
sketch10.addConstraint(Sketcher.Constraint("DistanceX", 0, 2, 11, 2, 10.372199))
sketch10.addConstraint(Sketcher.Constraint("DistanceX", 1, 1, 1, 2, 46.769234))
sketch10.addConstraint(Sketcher.Constraint("DistanceX", -1, 1, 4, 3, 102.017068))
sketch10.addConstraint(Sketcher.Constraint("DistanceX", -1, 1, 0, 2, 96.73216))
sketch10.addConstraint(Sketcher.Constraint("DistanceX", 14, 3, 2, 2, 5.111259))
sketch10.addConstraint(Sketcher.Constraint("DistanceX", 8, 2, 14, 3, 5.087291))
sketch10.setExpression("Constraints[27]", "Params.sketch10_diameter")
sketch10.setExpression("Constraints[28]", "Params.sketch10_radius")
sketch10.setExpression("Constraints[29]", "Params.sketch10_width")
sketch10.setExpression("Constraints[30]", "Params.sketch10_height")
pad6 = body.newObject("PartDesign::Pad", "Pad005")
pad6.Profile = sketch10
pad6.setExpression("Length", "Params.pad6_length")
pad6.Reversed = True

# Sketch on YZ plane
sketch11 = body.newObject("Sketcher::SketchObject", "Sketch010")
sketch11.AttachmentSupport = (doc.getObject("YZ_Plane"), [""])
sketch11.MapMode = "FlatFace"
sketch11.AttachmentOffset = App.Placement(V(0, 0, 84), App.Rotation())
sketch11.addGeometry(Part.LineSegment(V(22.383252, -12.22163, 0), V(12.383252, -12.22163, 0)), False)
sketch11.addGeometry(Part.LineSegment(V(12.383252, -12.22163, 0), V(12.383252, -15.22163, 0)), False)
sketch11.addGeometry(Part.LineSegment(V(12.383252, -15.22163, 0), V(22.383252, -15.22163, 0)), False)
sketch11.addGeometry(Part.LineSegment(V(22.383252, -15.22163, 0), V(22.383252, -12.22163, 0)), False)
sketch11.addGeometry(Part.LineSegment(V(22.383252, -6.22163, 0), V(12.383252, -6.22163, 0)), False)
sketch11.addGeometry(Part.LineSegment(V(12.383252, -6.22163, 0), V(12.383252, -9.22163, 0)), False)
sketch11.addGeometry(Part.LineSegment(V(12.383252, -9.22163, 0), V(22.383252, -9.22163, 0)), False)
sketch11.addGeometry(Part.LineSegment(V(22.383252, -9.22163, 0), V(22.383252, -6.22163, 0)), False)
sketch11.addConstraint(Sketcher.Constraint("Coincident", 0, 2, 1, 1))
sketch11.addConstraint(Sketcher.Constraint("Coincident", 1, 2, 2, 1))
sketch11.addConstraint(Sketcher.Constraint("Coincident", 2, 2, 3, 1))
sketch11.addConstraint(Sketcher.Constraint("Coincident", 3, 2, 0, 1))
sketch11.addConstraint(Sketcher.Constraint("Coincident", 4, 2, 5, 1))
sketch11.addConstraint(Sketcher.Constraint("Coincident", 5, 2, 6, 1))
sketch11.addConstraint(Sketcher.Constraint("Coincident", 6, 2, 7, 1))
sketch11.addConstraint(Sketcher.Constraint("Coincident", 7, 2, 4, 1))
sketch11.addConstraint(Sketcher.Constraint("Horizontal", 0))
sketch11.addConstraint(Sketcher.Constraint("Vertical", 1))
sketch11.addConstraint(Sketcher.Constraint("Horizontal", 2))
sketch11.addConstraint(Sketcher.Constraint("Vertical", 3))
sketch11.addConstraint(Sketcher.Constraint("Horizontal", 4))
sketch11.addConstraint(Sketcher.Constraint("Vertical", 5))
sketch11.addConstraint(Sketcher.Constraint("Horizontal", 6))
sketch11.addConstraint(Sketcher.Constraint("Vertical", 7))
sketch11.addConstraint(Sketcher.Constraint("Vertical", 1, 2, 4, 2))
sketch11.addConstraint(Sketcher.Constraint("Vertical", 3, 2, 6, 2))
sketch11.addConstraint(Sketcher.Constraint("Equal", 3, 5))
sketch11.addConstraint(Sketcher.Constraint("DistanceX", 0, 2, 0, 1, 10.0))
sketch11.addConstraint(Sketcher.Constraint("DistanceY", 1, 2, 1, 1, 3.0))
sketch11.addConstraint(Sketcher.Constraint("DistanceY", 0, 2, 4, 2, 6.0))
sketch11.addConstraint(Sketcher.Constraint("DistanceY", 0, 2, -1, 1, 12.22163))
sketch11.addConstraint(Sketcher.Constraint("DistanceX", -1, 1, 0, 2, 12.383252))
sketch11.setExpression("Constraints[19]", "Params.sketch11_width")
sketch11.setExpression("Constraints[20]", "Params.sketch11_height")
pocket5 = body.newObject("PartDesign::Pocket", "Pocket004")
pocket5.Profile = sketch11
pocket5.setExpression("Length", "Params.pocket5_length")
doc.recompute()

fillet = body.newObject("PartDesign::Fillet", "Fillet")
fillet.Base = (pocket5, edges_at(pocket5, [(200, 6, 0)]))
fillet.setExpression("Radius", "Params.fillet_radius")
doc.recompute()

fillet2 = body.newObject("PartDesign::Fillet", "Fillet001")
fillet2.Base = (fillet, edges_at(fillet, [(200, 6, -43)]))
fillet2.setExpression("Radius", "Params.fillet2_radius")

doc.recompute()
